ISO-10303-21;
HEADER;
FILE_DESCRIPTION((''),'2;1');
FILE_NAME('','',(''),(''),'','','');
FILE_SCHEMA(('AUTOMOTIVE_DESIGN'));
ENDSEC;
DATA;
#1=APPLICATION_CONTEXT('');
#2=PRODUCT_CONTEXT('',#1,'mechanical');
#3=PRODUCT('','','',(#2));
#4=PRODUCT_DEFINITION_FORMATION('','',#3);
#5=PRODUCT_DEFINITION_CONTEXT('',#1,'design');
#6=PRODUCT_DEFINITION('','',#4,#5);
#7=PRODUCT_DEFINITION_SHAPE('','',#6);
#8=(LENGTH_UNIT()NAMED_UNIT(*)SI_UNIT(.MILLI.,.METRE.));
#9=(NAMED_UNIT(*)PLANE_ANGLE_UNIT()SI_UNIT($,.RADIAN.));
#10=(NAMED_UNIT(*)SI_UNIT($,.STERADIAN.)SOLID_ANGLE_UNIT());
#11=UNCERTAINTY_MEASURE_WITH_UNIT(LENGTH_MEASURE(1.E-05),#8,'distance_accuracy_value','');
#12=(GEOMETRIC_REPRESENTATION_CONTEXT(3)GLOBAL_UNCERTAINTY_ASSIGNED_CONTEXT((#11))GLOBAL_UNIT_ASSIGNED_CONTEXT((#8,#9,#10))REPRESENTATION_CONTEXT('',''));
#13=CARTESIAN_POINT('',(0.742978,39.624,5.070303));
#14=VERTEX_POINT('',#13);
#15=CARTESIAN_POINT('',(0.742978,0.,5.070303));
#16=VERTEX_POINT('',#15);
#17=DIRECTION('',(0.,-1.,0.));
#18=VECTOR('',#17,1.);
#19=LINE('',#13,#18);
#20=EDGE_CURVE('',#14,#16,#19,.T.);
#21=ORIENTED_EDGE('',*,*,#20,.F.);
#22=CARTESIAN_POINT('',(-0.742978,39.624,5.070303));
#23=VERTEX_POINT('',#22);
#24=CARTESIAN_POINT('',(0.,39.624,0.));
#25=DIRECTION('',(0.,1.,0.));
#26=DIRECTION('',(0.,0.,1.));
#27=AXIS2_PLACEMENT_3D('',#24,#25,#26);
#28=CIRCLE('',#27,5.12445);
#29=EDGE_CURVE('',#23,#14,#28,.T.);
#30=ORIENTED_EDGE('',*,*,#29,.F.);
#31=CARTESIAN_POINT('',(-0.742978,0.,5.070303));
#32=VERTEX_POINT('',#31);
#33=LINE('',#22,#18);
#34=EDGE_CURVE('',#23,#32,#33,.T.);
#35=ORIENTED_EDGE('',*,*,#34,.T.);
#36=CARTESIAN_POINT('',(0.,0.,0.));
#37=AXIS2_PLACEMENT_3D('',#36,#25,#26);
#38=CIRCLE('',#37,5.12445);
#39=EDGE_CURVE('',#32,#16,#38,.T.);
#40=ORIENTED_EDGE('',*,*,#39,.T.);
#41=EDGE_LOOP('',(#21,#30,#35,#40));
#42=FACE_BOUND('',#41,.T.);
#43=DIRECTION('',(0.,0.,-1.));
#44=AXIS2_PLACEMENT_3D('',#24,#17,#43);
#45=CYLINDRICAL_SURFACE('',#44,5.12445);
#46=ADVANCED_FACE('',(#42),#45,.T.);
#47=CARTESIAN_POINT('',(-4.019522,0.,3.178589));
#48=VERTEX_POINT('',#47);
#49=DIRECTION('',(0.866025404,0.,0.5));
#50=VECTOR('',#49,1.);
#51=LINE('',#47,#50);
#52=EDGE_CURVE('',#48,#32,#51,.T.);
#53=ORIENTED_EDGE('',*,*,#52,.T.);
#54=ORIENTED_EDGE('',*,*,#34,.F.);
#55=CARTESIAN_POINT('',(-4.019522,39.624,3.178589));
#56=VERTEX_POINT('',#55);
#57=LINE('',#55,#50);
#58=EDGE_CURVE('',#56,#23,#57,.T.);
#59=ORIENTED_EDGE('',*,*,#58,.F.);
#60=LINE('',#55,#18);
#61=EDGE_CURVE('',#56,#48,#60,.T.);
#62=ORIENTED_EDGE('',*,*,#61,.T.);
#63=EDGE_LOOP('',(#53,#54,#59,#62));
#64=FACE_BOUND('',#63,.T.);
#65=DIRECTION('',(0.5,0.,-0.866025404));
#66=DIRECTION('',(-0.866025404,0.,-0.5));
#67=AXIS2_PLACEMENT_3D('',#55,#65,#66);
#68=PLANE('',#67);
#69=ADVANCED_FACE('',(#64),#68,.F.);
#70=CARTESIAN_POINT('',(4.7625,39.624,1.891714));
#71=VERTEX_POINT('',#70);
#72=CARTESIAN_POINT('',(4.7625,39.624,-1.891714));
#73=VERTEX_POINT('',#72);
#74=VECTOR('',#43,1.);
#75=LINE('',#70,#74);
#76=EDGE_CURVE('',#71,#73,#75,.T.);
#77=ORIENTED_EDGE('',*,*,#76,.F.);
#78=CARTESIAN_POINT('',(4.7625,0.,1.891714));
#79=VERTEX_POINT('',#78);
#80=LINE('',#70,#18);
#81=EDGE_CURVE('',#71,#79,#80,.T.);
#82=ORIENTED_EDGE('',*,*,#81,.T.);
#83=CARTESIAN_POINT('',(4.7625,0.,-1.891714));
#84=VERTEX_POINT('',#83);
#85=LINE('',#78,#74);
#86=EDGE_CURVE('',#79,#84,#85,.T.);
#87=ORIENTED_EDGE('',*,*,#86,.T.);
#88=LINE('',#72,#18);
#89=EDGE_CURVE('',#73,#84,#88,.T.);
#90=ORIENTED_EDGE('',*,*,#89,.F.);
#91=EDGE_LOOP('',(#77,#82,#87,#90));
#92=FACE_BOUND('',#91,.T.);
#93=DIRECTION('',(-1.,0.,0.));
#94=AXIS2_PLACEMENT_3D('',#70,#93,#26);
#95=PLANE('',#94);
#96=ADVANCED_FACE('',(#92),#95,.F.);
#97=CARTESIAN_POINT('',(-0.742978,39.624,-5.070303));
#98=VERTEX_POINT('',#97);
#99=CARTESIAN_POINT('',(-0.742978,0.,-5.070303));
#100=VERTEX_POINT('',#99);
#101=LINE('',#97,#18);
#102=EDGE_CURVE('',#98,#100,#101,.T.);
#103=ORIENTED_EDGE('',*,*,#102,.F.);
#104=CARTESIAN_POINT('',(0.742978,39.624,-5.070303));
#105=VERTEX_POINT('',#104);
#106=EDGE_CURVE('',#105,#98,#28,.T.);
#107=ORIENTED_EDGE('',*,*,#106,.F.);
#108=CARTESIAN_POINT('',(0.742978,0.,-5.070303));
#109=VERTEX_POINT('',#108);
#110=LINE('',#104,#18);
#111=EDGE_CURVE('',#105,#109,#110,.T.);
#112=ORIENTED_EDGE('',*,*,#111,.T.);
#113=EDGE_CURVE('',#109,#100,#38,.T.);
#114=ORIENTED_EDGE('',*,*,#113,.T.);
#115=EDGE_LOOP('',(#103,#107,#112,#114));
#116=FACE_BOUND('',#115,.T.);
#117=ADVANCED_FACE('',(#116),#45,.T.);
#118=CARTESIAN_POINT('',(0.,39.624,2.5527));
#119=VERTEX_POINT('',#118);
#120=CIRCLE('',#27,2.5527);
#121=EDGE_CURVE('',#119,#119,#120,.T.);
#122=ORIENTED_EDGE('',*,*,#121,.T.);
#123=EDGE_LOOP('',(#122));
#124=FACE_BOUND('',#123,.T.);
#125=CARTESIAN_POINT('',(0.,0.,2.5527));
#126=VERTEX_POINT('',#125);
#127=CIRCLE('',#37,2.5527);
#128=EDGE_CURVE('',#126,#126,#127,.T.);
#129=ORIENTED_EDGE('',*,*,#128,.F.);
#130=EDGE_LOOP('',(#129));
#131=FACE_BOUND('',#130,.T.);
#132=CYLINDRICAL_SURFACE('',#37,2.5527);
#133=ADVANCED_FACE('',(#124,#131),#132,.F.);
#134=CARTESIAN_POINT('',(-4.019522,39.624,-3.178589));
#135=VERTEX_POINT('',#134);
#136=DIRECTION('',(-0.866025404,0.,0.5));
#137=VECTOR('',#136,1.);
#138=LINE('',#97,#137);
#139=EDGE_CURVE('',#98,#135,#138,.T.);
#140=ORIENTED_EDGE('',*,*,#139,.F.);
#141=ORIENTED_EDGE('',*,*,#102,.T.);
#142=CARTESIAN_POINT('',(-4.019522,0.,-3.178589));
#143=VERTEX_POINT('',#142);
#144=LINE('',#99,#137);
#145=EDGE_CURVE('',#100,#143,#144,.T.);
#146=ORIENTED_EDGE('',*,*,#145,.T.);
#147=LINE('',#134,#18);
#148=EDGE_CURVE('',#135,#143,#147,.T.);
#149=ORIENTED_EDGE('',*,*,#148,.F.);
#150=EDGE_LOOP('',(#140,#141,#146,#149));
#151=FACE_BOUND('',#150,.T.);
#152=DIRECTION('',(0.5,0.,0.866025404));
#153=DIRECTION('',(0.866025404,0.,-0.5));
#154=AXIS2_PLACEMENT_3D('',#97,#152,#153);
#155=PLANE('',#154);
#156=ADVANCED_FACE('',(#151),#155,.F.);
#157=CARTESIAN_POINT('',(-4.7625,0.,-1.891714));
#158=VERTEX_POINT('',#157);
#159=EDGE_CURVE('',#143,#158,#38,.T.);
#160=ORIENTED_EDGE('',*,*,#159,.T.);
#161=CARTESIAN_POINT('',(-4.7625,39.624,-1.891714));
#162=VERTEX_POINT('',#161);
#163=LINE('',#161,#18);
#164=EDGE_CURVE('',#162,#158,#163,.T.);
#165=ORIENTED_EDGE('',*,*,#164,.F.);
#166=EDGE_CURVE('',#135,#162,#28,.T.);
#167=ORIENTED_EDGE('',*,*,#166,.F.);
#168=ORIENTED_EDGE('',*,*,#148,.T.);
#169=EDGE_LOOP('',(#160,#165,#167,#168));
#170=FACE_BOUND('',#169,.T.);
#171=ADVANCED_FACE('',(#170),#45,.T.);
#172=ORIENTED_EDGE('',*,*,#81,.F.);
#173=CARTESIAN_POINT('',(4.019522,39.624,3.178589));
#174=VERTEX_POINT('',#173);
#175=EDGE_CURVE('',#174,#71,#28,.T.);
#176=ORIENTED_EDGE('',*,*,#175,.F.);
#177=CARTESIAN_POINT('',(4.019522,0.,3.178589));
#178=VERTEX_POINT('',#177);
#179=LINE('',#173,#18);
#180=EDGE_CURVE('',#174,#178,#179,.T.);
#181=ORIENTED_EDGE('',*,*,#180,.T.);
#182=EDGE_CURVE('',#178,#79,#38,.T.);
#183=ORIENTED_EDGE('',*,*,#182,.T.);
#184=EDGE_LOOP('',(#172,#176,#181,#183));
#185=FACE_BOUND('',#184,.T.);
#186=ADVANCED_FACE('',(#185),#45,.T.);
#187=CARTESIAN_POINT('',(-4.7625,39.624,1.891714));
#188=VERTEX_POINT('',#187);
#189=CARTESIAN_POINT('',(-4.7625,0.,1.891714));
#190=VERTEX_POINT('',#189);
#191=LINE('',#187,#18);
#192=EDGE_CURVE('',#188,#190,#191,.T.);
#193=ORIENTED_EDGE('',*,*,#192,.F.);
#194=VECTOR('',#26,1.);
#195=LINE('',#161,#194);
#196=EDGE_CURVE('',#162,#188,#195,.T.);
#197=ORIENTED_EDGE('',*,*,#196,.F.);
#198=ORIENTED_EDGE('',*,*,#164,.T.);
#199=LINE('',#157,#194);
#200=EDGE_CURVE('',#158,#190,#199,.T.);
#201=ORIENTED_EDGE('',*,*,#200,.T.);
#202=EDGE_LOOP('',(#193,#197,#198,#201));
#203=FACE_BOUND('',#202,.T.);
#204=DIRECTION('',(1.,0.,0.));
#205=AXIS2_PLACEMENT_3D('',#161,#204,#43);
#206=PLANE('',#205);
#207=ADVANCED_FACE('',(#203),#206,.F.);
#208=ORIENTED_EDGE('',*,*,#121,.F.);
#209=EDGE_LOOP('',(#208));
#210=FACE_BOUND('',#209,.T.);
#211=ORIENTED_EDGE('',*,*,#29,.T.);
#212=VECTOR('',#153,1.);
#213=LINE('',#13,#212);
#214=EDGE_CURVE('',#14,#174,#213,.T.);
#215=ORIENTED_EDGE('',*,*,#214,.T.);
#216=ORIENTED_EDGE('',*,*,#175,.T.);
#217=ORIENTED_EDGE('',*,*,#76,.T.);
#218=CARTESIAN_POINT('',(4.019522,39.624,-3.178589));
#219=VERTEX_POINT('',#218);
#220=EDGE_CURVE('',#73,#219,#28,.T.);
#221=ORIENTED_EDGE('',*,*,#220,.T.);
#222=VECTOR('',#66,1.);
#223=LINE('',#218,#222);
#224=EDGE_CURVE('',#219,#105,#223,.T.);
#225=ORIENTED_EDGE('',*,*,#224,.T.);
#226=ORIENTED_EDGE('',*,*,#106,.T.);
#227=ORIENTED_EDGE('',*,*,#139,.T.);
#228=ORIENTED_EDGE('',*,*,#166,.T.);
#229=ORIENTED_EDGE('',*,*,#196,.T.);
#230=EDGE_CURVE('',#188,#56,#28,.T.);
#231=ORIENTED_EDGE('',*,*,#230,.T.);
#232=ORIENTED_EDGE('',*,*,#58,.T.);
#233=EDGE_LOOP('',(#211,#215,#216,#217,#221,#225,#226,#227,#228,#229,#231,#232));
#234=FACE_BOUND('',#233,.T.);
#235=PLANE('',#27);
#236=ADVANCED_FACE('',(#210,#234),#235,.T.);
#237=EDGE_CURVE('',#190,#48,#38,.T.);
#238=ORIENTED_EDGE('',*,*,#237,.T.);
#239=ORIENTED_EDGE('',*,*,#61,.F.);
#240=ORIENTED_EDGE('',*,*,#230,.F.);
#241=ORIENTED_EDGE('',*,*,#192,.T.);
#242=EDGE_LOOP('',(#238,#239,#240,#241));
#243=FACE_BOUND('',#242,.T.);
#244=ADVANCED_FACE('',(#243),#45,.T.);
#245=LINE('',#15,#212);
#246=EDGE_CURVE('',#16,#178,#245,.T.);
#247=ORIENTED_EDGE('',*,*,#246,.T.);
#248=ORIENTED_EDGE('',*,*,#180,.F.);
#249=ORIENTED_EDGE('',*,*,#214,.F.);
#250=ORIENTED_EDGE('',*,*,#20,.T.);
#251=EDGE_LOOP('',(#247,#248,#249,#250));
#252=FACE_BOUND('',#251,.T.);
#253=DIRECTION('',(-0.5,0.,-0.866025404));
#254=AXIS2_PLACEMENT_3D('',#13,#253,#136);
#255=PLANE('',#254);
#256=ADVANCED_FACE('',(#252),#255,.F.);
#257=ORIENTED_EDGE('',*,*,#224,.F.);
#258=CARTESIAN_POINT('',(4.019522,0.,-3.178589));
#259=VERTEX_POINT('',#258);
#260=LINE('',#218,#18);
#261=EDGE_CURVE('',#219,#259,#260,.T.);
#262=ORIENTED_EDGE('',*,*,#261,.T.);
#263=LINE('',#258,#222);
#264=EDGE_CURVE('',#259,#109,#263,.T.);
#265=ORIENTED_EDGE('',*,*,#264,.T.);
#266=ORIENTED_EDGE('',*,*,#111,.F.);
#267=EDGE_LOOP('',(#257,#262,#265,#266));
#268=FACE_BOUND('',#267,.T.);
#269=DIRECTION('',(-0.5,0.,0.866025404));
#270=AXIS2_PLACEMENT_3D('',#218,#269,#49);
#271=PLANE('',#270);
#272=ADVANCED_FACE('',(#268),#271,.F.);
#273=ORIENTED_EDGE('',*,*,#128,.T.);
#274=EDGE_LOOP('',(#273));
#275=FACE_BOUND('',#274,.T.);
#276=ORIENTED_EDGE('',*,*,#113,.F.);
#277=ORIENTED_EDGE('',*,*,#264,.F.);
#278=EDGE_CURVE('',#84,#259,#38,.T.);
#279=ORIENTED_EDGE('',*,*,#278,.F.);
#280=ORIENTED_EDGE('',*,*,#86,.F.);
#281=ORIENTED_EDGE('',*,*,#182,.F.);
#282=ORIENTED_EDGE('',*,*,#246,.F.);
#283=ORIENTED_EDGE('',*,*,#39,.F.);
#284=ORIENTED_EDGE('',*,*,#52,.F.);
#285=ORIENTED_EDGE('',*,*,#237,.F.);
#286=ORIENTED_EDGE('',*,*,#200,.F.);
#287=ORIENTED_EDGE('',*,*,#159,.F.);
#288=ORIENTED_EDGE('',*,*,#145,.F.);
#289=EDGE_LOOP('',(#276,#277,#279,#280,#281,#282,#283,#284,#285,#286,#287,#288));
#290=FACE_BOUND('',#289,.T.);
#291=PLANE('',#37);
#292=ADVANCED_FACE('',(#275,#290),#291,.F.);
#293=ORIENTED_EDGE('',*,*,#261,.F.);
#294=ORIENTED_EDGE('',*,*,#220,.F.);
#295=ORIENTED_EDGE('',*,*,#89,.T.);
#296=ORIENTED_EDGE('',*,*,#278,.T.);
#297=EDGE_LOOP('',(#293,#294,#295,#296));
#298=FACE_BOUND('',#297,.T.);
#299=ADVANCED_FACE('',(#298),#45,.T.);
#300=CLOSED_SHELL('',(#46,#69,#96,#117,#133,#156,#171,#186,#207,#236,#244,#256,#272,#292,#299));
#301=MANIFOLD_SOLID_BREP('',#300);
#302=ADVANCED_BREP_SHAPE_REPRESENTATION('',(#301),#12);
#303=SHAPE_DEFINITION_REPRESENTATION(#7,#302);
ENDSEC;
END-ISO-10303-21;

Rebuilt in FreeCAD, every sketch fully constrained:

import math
import FreeCAD as App
import Part
import Sketcher
Q = App.Units.Quantity

doc = App.newDocument("Part")
body = doc.addObject("PartDesign::Body", "Body")

# Sketch on XZ plane
sketch1 = doc.addObject("Sketcher::SketchObject", "Sketch")
body.addObject(sketch1)
sketch1.AttachmentSupport = (doc.XZ_Plane, [""])
sketch1.MapMode = "FlatFace"
sketch1.addGeometry(Part.LineSegment(App.Vector(-0.7, -5.1, 0), App.Vector(-4, -3.2, 0)), False)
sketch1.addGeometry(Part.ArcOfCircle(Part.Circle(App.Vector(0, 0, 0), App.Vector(0, 0, 1), 5.1), math.radians(-158.34), math.radians(-141.66)), False)
sketch1.addGeometry(Part.LineSegment(App.Vector(-4.8, -1.9, 0), App.Vector(-4.8, 1.9, 0)), False)
sketch1.addGeometry(Part.ArcOfCircle(Part.Circle(App.Vector(0, 0, 0), App.Vector(0, 0, 1), 5.1), math.radians(141.66), math.radians(158.34)), False)
sketch1.addGeometry(Part.LineSegment(App.Vector(-4, 3.2, 0), App.Vector(-0.7, 5.1, 0)), False)
sketch1.addGeometry(Part.ArcOfCircle(Part.Circle(App.Vector(0, 0, 0), App.Vector(0, 0, 1), 5.1), math.radians(81.66), math.radians(98.34)), False)
sketch1.addGeometry(Part.LineSegment(App.Vector(0.7, 5.1, 0), App.Vector(4, 3.2, 0)), False)
sketch1.addGeometry(Part.ArcOfCircle(Part.Circle(App.Vector(0, 0, 0), App.Vector(0, 0, 1), 5.1), math.radians(21.66), math.radians(38.34)), False)
sketch1.addGeometry(Part.LineSegment(App.Vector(4.8, 1.9, 0), App.Vector(4.8, -1.9, 0)), False)
sketch1.addGeometry(Part.ArcOfCircle(Part.Circle(App.Vector(0, 0, 0), App.Vector(0, 0, 1), 5.1), math.radians(-38.34), math.radians(-21.66)), False)
sketch1.addGeometry(Part.LineSegment(App.Vector(4, -3.2, 0), App.Vector(0.7, -5.1, 0)), False)
sketch1.addGeometry(Part.ArcOfCircle(Part.Circle(App.Vector(0, 0, 0), App.Vector(0, 0, 1), 5.1), math.radians(-98.34), math.radians(-81.66)), False)
sketch1.addConstraint(Sketcher.Constraint("Coincident", 0, 2, 1, 2))
sketch1.addConstraint(Sketcher.Constraint("Coincident", 1, 1, 2, 1))
sketch1.addConstraint(Sketcher.Constraint("Coincident", 2, 2, 3, 2))
sketch1.addConstraint(Sketcher.Constraint("Coincident", 3, 1, 4, 1))
sketch1.addConstraint(Sketcher.Constraint("Coincident", 4, 2, 5, 2))
sketch1.addConstraint(Sketcher.Constraint("Coincident", 5, 1, 6, 1))
sketch1.addConstraint(Sketcher.Constraint("Coincident", 6, 2, 7, 2))
sketch1.addConstraint(Sketcher.Constraint("Coincident", 7, 1, 8, 1))
sketch1.addConstraint(Sketcher.Constraint("Coincident", 8, 2, 9, 2))
sketch1.addConstraint(Sketcher.Constraint("Coincident", 9, 1, 10, 1))
sketch1.addConstraint(Sketcher.Constraint("Coincident", 10, 2, 11, 2))
sketch1.addConstraint(Sketcher.Constraint("Coincident", 11, 1, 0, 1))
sketch1.addConstraint(Sketcher.Constraint("Vertical", 2))
sketch1.addConstraint(Sketcher.Constraint("Vertical", 8))
sketch1.addConstraint(Sketcher.Constraint("Coincident", 1, 3, -1, 1))
sketch1.addConstraint(Sketcher.Constraint("Coincident", 3, 3, -1, 1))
sketch1.addConstraint(Sketcher.Constraint("Coincident", 5, 3, -1, 1))
sketch1.addConstraint(Sketcher.Constraint("Coincident", 7, 3, -1, 1))
sketch1.addConstraint(Sketcher.Constraint("Coincident", 9, 3, -1, 1))
sketch1.addConstraint(Sketcher.Constraint("Coincident", 11, 3, -1, 1))
sketch1.addConstraint(Sketcher.Constraint("Equal", 1, 3))
sketch1.addConstraint(Sketcher.Constraint("Equal", 3, 5))
sketch1.addConstraint(Sketcher.Constraint("Equal", 5, 7))
sketch1.addConstraint(Sketcher.Constraint("Equal", 7, 9))
sketch1.addConstraint(Sketcher.Constraint("Equal", 9, 11))
sketch1.addConstraint(Sketcher.Constraint("Parallel", 0, 6))
sketch1.addConstraint(Sketcher.Constraint("Parallel", 4, 10))
sketch1.addConstraint(Sketcher.Constraint("Horizontal", 4, 2, 5, 1))
sketch1.addConstraint(Sketcher.Constraint("Horizontal", 3, 1, 6, 2))
sketch1.addConstraint(Sketcher.Constraint("Horizontal", 2, 2, 7, 1))
sketch1.addConstraint(Sketcher.Constraint("Horizontal", 0, 2, 9, 1))
sketch1.addConstraint(Sketcher.Constraint("Vertical", 0, 2, 3, 1))
sketch1.addConstraint(Sketcher.Constraint("Angle", 0, Q("150 deg")))
sketch1.addConstraint(Sketcher.Constraint("DistanceX", 1, 1, -1, 1, Q("0.1875 in")))
sketch1.addConstraint(Sketcher.Constraint("Radius", 1, 5.12445))
sketch1.addConstraint(Sketcher.Constraint("DistanceX", 3, 1, 5, 1, Q("0.1875 in")))
pad1 = doc.addObject("PartDesign::Pad", "Pad")
body.addObject(pad1)
pad1.Profile = sketch1
pad1.Length = Q("1.56 in")
pad1.Reversed = True

# Sketch on XZ plane
sketch2 = doc.addObject("Sketcher::SketchObject", "Sketch001")
body.addObject(sketch2)
sketch2.AttachmentSupport = (doc.XZ_Plane, [""])
sketch2.MapMode = "FlatFace"
sketch2.AttachmentOffset = App.Placement(App.Vector(0, 0, -1.56 * 25.4), App.Rotation())
sketch2.addGeometry(Part.Circle(App.Vector(0, 0, 0), App.Vector(0, 0, 1), 2.6), False)
sketch2.addConstraint(Sketcher.Constraint("Coincident", 0, 3, -1, 1))
sketch2.addConstraint(Sketcher.Constraint("Diameter", 0, Q("0.201 in")))
pocket1 = doc.addObject("PartDesign::Pocket", "Pocket")
body.addObject(pocket1)
pocket1.Profile = sketch2
pocket1.Type = "ThroughAll"
pocket1.Reversed = True

doc.recompute()
